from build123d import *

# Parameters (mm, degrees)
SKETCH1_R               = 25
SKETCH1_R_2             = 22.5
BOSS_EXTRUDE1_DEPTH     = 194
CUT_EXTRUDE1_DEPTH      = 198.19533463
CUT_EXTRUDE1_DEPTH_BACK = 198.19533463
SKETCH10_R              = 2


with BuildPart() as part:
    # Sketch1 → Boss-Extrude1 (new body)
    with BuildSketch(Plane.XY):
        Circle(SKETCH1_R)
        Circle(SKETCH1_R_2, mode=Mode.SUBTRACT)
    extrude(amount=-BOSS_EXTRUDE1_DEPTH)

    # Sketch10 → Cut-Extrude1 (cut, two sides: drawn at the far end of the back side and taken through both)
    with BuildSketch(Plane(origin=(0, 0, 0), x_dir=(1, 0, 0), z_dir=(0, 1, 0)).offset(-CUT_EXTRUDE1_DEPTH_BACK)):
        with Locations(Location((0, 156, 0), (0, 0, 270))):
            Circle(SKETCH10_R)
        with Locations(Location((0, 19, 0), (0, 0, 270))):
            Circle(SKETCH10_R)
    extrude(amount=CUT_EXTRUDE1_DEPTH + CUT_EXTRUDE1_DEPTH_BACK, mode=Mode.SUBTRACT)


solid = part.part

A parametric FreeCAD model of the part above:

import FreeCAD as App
import Part
import Sketcher
Q = App.Units.Quantity

doc = App.newDocument("Part")
body = doc.addObject("PartDesign::Body", "Body")

sketch1 = body.newObject("Sketcher::SketchObject", "Sketch")
sketch1.AttachmentSupport = (doc.getObject("XY_Plane"), [""])
sketch1.MapMode = "FlatFace"
sketch1.addGeometry([
    Part.Circle(App.Vector(0, 0, 0), App.Vector(0, 0, 1), 25),
    Part.Circle(App.Vector(0, 0, 0), App.Vector(0, 0, 1), 22),
], False)
sketch1.addConstraint([
    Sketcher.Constraint("Coincident", 0, 3, -1, 1),
    Sketcher.Constraint("Coincident", 1, 3, -1, 1),
    Sketcher.Constraint("Diameter", 0, Q("50 mm")),
    Sketcher.Constraint("Diameter", 1, Q("45 mm")),
])
pad1 = body.newObject("PartDesign::Pad", "Pad")
pad1.Profile = sketch1
pad1.Length = 194
pad1.Reversed = True

sketch2 = body.newObject("Sketcher::SketchObject", "Sketch001")
sketch2.AttachmentSupport = (doc.getObject("XZ_Plane"), [""])
sketch2.MapMode = "FlatFace"
sketch2.addGeometry([
    Part.Circle(App.Vector(0, -156, 0), App.Vector(0, 0, 1), 2),
    Part.Circle(App.Vector(0, -19, 0), App.Vector(0, 0, 1), 2),
], False)
sketch2.addConstraint([
    Sketcher.Constraint("Equal", 0, 1),
    Sketcher.Constraint("PointOnObject", 0, 3, -2),
    Sketcher.Constraint("PointOnObject", 1, 3, -2),
    Sketcher.Constraint("Diameter", 0, Q("4 mm")),
    Sketcher.Constraint("DistanceY", 0, 3, -1, 1, Q("156 mm")),
    Sketcher.Constraint("DistanceY", 1, 3, -1, 1, Q("19 mm")),
])
pocket1 = body.newObject("PartDesign::Pocket", "Pocket")
pocket1.Profile = sketch2
pocket1.Type = "ThroughAll"
pocket1.Midplane = True

doc.recompute()
